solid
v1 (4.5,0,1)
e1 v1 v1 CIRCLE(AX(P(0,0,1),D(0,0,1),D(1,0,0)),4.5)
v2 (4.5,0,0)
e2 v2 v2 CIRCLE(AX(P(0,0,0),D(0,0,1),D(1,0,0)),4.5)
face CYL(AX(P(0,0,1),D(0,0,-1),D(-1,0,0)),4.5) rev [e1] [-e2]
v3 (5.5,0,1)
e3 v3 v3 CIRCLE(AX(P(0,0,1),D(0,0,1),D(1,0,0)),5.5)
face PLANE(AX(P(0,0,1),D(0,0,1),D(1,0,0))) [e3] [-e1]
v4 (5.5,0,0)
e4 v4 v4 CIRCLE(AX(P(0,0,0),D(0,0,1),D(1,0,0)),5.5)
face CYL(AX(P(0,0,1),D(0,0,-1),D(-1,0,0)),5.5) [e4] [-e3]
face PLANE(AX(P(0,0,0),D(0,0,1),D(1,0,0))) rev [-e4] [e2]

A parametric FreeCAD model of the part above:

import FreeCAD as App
import Part
import Sketcher

V = App.Vector

doc = App.newDocument("Part")
body = doc.addObject("PartDesign::Body", "Body")

sketch1 = body.newObject("Sketcher::SketchObject", "Sketch")
sketch1.AttachmentSupport = (doc.getObject("XY_Plane"), [""])
sketch1.MapMode = "FlatFace"
sketch1.addGeometry([
    Part.Circle(V(0, 0, 0), V(0, 0, 1), 5.5),
    Part.Circle(V(0, 0, 0), V(0, 0, 1), 4.5),
], False)
sketch1.addConstraint([
    Sketcher.Constraint("Coincident", 0, 3, -1, 1),
    Sketcher.Constraint("Coincident", 1, 3, -1, 1),
    Sketcher.Constraint("Diameter", 0, 11.0),
    Sketcher.Constraint("Diameter", 1, 9.0),
])
pad1 = body.newObject("PartDesign::Pad", "Pad")
pad1.Profile = sketch1
pad1.Length = 1

doc.recompute()
